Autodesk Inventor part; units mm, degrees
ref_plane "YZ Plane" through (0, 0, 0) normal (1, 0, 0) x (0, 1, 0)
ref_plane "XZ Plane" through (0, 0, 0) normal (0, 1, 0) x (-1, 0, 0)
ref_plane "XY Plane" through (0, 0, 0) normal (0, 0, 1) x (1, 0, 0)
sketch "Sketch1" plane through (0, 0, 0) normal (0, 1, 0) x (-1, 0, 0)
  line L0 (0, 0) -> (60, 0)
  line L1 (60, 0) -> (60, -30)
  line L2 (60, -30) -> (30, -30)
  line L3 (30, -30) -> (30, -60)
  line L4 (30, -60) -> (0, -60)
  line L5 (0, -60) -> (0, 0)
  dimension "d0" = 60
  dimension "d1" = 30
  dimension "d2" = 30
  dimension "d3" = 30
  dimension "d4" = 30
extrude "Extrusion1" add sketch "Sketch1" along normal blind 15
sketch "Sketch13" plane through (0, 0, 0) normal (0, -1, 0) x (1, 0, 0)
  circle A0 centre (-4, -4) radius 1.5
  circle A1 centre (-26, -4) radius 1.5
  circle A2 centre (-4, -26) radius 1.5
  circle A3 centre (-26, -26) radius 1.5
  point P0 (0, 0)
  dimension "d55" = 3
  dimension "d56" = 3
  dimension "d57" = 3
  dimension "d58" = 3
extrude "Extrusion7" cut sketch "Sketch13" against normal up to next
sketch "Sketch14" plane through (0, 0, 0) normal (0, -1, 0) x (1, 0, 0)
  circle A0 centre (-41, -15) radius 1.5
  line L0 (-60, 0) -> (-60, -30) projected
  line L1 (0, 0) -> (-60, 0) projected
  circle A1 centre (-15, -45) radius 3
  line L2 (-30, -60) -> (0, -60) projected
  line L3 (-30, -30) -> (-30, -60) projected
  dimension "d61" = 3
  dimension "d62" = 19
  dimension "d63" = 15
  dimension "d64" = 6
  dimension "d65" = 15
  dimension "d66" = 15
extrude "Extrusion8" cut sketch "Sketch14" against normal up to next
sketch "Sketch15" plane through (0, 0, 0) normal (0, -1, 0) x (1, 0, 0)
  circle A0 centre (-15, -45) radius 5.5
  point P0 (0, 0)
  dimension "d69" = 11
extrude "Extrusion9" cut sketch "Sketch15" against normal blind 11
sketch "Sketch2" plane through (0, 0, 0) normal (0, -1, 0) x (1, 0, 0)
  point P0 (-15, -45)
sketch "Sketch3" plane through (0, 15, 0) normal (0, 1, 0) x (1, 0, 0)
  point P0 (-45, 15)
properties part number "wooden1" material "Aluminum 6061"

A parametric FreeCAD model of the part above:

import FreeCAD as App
import Part
import Sketcher
from FreeCAD import Vector


def add_polygon(sketch, points):
    """Adds a closed chain of lines whose ends are joined by coincident constraints."""
    first, n = sketch.GeometryCount, len(points)
    for a, b in zip(points, points[1:] + points[:1]):
        sketch.addGeometry(Part.LineSegment(App.Vector(*a, 0), App.Vector(*b, 0)), False)
    for i in range(n):
        sketch.addConstraint(Sketcher.Constraint("Coincident", first + i, 2, first + (i + 1) % n, 1))

doc = App.newDocument("Part")
params = doc.addObject("Spreadsheet::Sheet", "Params")
for row, (alias, value) in enumerate([
    ("sketch1_width", "60 mm"),
    ("pad1_length", "15 mm"),
    ("sketch2_diameter", "3 mm"),
    ("sketch3_diameter", "3 mm"),
    ("sketch3_diameter2", "6 mm"),
    ("sketch4_diameter", "11 mm"),
    ("pocket3_length", "11 mm"),
], start=1):
    params.set(f"A{row}", alias)
    params.set(f"B{row}", "=" + value)
    params.setAlias(f"B{row}", alias)

body = doc.addObject("PartDesign::Body", "Body")

# Sketch on XZ plane
sketch1 = body.newObject("Sketcher::SketchObject", "Sketch")
sketch1.AttachmentSupport = (doc.getObject("XZ_Plane"), [""])
sketch1.MapMode = "FlatFace"
add_polygon(sketch1, [(-60, 0), (0, 0), (0, -60), (-30, -60), (-30, -30), (-60, -30)])  # lines 0-5
sketch1.addConstraint(Sketcher.Constraint("Horizontal", 0))
sketch1.addConstraint(Sketcher.Constraint("Vertical", 1))
sketch1.addConstraint(Sketcher.Constraint("Horizontal", 2))
sketch1.addConstraint(Sketcher.Constraint("Vertical", 3))
sketch1.addConstraint(Sketcher.Constraint("Horizontal", 4))
sketch1.addConstraint(Sketcher.Constraint("Vertical", 5))
sketch1.addConstraint(Sketcher.Constraint("Coincident", 0, 2, -1, 1))
sketch1.addConstraint(Sketcher.Constraint("Equal", 2, 4))
sketch1.addConstraint(Sketcher.Constraint("Equal", 0, 1))
sketch1.addConstraint(Sketcher.Constraint("Equal", 4, 3))
sketch1.addConstraint(Sketcher.Constraint("DistanceX", 0, 1, 0, 2, 60.0))
sketch1.setExpression("Constraints[16]", "Params.sketch1_width")
pad1 = body.newObject("PartDesign::Pad", "Pad")
pad1.Profile = sketch1
pad1.setExpression("Length", "Params.pad1_length")
pad1.Reversed = True

# Sketch on XZ plane
sketch2 = body.newObject("Sketcher::SketchObject", "Sketch001")
sketch2.AttachmentSupport = (doc.getObject("XZ_Plane"), [""])
sketch2.MapMode = "FlatFace"
sketch2.addGeometry(Part.Circle(Vector(-4, -4, 0), Vector(0, 0, 1), 1.5), False)
sketch2.addGeometry(Part.Circle(Vector(-26, -4, 0), Vector(0, 0, 1), 1.5), False)
sketch2.addGeometry(Part.Circle(Vector(-4, -26, 0), Vector(0, 0, 1), 1.5), False)
sketch2.addGeometry(Part.Circle(Vector(-26, -26, 0), Vector(0, 0, 1), 1.5), False)
sketch2.addConstraint(Sketcher.Constraint("Equal", 0, 1))
sketch2.addConstraint(Sketcher.Constraint("Equal", 1, 2))
sketch2.addConstraint(Sketcher.Constraint("Equal", 2, 3))
sketch2.addConstraint(Sketcher.Constraint("Horizontal", 0, 3, 1, 3))
sketch2.addConstraint(Sketcher.Constraint("Horizontal", 2, 3, 3, 3))
sketch2.addConstraint(Sketcher.Constraint("Vertical", 0, 3, 2, 3))
sketch2.addConstraint(Sketcher.Constraint("Vertical", 1, 3, 3, 3))
sketch2.addConstraint(Sketcher.Constraint("Diameter", 0, 3.0))
sketch2.addConstraint(Sketcher.Constraint("DistanceX", 0, 3, -1, 1, 4.0))
sketch2.addConstraint(Sketcher.Constraint("DistanceY", 0, 3, -1, 1, 4.0))
sketch2.addConstraint(Sketcher.Constraint("DistanceX", 1, 3, -1, 1, 26.0))
sketch2.addConstraint(Sketcher.Constraint("DistanceY", 2, 3, -1, 1, 26.0))
sketch2.setExpression("Constraints[7]", "Params.sketch2_diameter")
pocket1 = body.newObject("PartDesign::Pocket", "Pocket")
pocket1.Profile = sketch2
pocket1.Type = "UpToFirst"

# Sketch on XZ plane
sketch3 = body.newObject("Sketcher::SketchObject", "Sketch002")
sketch3.AttachmentSupport = (doc.getObject("XZ_Plane"), [""])
sketch3.MapMode = "FlatFace"
sketch3.addGeometry(Part.Circle(Vector(-41, -15, 0), Vector(0, 0, 1), 1.5), False)
sketch3.addGeometry(Part.Circle(Vector(-15, -45, 0), Vector(0, 0, 1), 3), False)
sketch3.addConstraint(Sketcher.Constraint("Diameter", 0, 3.0))
sketch3.addConstraint(Sketcher.Constraint("Diameter", 1, 6.0))
sketch3.addConstraint(Sketcher.Constraint("DistanceY", 0, 3, -1, 1, 15.0))
sketch3.addConstraint(Sketcher.Constraint("DistanceX", 1, 3, -1, 1, 15.0))
sketch3.addConstraint(Sketcher.Constraint("DistanceX", 0, 3, -1, 1, 41.0))
sketch3.addConstraint(Sketcher.Constraint("DistanceY", 1, 3, -1, 1, 45.0))
sketch3.setExpression("Constraints[0]", "Params.sketch3_diameter")
sketch3.setExpression("Constraints[1]", "Params.sketch3_diameter2")
pocket2 = body.newObject("PartDesign::Pocket", "Pocket001")
pocket2.Profile = sketch3
pocket2.Type = "UpToFirst"

# Sketch on XZ plane
sketch4 = body.newObject("Sketcher::SketchObject", "Sketch003")
sketch4.AttachmentSupport = (doc.getObject("XZ_Plane"), [""])
sketch4.MapMode = "FlatFace"
sketch4.addGeometry(Part.Circle(Vector(-15, -45, 0), Vector(0, 0, 1), 6), False)
sketch4.addConstraint(Sketcher.Constraint("Diameter", 0, 11.0))
sketch4.addConstraint(Sketcher.Constraint("DistanceX", 0, 3, -1, 1, 15.0))
sketch4.addConstraint(Sketcher.Constraint("DistanceY", 0, 3, -1, 1, 45.0))
sketch4.setExpression("Constraints[0]", "Params.sketch4_diameter")
pocket3 = body.newObject("PartDesign::Pocket", "Pocket002")
pocket3.Profile = sketch4
pocket3.setExpression("Length", "Params.pocket3_length")

doc.recompute()
